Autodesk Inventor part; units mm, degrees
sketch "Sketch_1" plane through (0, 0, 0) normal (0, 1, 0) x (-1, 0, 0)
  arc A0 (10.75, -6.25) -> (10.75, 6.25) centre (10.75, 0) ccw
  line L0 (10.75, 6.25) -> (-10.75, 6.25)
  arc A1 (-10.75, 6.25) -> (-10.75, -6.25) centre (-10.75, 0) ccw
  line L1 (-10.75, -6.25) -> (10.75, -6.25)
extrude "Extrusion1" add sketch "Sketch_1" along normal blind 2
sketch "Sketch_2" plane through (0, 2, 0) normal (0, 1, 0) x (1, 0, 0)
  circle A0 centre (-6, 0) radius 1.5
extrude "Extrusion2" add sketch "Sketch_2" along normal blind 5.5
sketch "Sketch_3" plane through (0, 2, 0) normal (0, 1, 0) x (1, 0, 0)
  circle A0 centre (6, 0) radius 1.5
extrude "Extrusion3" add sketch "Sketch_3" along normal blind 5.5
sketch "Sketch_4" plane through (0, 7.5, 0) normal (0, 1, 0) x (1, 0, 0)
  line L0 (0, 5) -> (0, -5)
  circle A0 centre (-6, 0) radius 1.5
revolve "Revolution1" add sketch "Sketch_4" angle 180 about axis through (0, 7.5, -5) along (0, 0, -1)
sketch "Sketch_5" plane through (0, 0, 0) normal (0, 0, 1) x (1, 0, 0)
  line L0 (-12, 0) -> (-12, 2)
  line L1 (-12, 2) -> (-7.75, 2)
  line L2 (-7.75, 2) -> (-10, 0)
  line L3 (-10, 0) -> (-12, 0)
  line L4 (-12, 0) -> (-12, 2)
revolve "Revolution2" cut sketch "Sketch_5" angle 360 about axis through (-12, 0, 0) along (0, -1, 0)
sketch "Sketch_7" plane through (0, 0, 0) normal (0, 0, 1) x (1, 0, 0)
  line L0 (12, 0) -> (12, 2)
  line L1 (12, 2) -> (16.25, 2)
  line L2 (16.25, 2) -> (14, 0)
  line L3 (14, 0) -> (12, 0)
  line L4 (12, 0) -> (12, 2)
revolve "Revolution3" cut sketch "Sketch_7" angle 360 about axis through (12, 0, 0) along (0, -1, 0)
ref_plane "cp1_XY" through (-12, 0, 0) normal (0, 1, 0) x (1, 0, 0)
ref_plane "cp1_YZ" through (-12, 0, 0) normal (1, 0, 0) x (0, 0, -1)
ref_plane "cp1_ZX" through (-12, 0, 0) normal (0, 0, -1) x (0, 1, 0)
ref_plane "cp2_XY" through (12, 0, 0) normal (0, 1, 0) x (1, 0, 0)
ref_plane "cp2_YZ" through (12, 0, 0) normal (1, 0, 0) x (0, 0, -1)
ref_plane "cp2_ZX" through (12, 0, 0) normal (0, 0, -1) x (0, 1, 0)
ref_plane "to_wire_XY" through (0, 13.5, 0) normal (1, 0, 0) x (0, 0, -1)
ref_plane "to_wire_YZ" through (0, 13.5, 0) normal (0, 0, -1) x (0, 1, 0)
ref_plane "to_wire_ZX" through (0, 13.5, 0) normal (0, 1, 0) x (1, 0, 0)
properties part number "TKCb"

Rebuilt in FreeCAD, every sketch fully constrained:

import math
import FreeCAD as App
import Part
import Sketcher
from FreeCAD import Vector


def add_polygon(sketch, points):
    """Adds a closed chain of lines whose ends are joined by coincident constraints."""
    first, n = sketch.GeometryCount, len(points)
    for a, b in zip(points, points[1:] + points[:1]):
        sketch.addGeometry(Part.LineSegment(App.Vector(*a, 0), App.Vector(*b, 0)), False)
    for i in range(n):
        sketch.addConstraint(Sketcher.Constraint("Coincident", first + i, 2, first + (i + 1) % n, 1))

doc = App.newDocument("Part")
body = doc.addObject("PartDesign::Body", "Body")

# Sketch on XZ plane
sketch1 = body.newObject("Sketcher::SketchObject", "Sketch")
sketch1.AttachmentSupport = (doc.getObject("XZ_Plane"), [""])
sketch1.MapMode = "FlatFace"
sketch1.addGeometry(Part.LineSegment(Vector(11, -6, 0), Vector(-11, -6, 0)), False)
sketch1.addGeometry(Part.ArcOfCircle(Part.Circle(Vector(-11, 0, 0), Vector(0, 0, 1), 6), math.radians(90), math.radians(270)), False)
sketch1.addGeometry(Part.LineSegment(Vector(-11, 6, 0), Vector(11, 6, 0)), False)
sketch1.addGeometry(Part.ArcOfCircle(Part.Circle(Vector(11, 0, 0), Vector(0, 0, 1), 6), math.radians(-90), math.radians(90)), False)
sketch1.addConstraint(Sketcher.Constraint("Tangent", 0, 2, 1, 2))
sketch1.addConstraint(Sketcher.Constraint("Tangent", 1, 1, 2, 1))
sketch1.addConstraint(Sketcher.Constraint("Tangent", 2, 2, 3, 2))
sketch1.addConstraint(Sketcher.Constraint("Tangent", 3, 1, 0, 1))
sketch1.addConstraint(Sketcher.Constraint("Horizontal", 0))
sketch1.addConstraint(Sketcher.Constraint("Horizontal", 2))
sketch1.addConstraint(Sketcher.Constraint("Symmetric", 1, 3, 3, 3, -1, 1))
sketch1.addConstraint(Sketcher.Constraint("Radius", 1, 6.25))
sketch1.addConstraint(Sketcher.Constraint("DistanceX", 0, 2, 0, 1, 21.5))
pad1 = body.newObject("PartDesign::Pad", "Pad")
pad1.Profile = sketch1
pad1.Length = 2
pad1.Reversed = True

# Sketch on XZ plane
sketch2 = body.newObject("Sketcher::SketchObject", "Sketch001")
sketch2.AttachmentSupport = (doc.getObject("XZ_Plane"), [""])
sketch2.MapMode = "FlatFace"
sketch2.AttachmentOffset = App.Placement(Vector(0, 0, -2), App.Rotation())
sketch2.addGeometry(Part.Circle(Vector(-6, 0, 0), Vector(0, 0, 1), 1.5), False)
sketch2.addConstraint(Sketcher.Constraint("PointOnObject", 0, 3, -1))
sketch2.addConstraint(Sketcher.Constraint("Diameter", 0, 3.0))
sketch2.addConstraint(Sketcher.Constraint("DistanceX", 0, 3, -1, 1, 6.0))
pad2 = body.newObject("PartDesign::Pad", "Pad001")
pad2.Profile = sketch2
pad2.Length = 5.5
pad2.Reversed = True

# Sketch on XZ plane
sketch3 = body.newObject("Sketcher::SketchObject", "Sketch002")
sketch3.AttachmentSupport = (doc.getObject("XZ_Plane"), [""])
sketch3.MapMode = "FlatFace"
sketch3.AttachmentOffset = App.Placement(Vector(0, 0, -2), App.Rotation())
sketch3.addGeometry(Part.Circle(Vector(6, 0, 0), Vector(0, 0, 1), 1.5), False)
sketch3.addConstraint(Sketcher.Constraint("PointOnObject", 0, 3, -1))
sketch3.addConstraint(Sketcher.Constraint("Diameter", 0, 3.0))
sketch3.addConstraint(Sketcher.Constraint("DistanceX", -1, 1, 0, 3, 6.0))
pad3 = body.newObject("PartDesign::Pad", "Pad002")
pad3.Profile = sketch3
pad3.Length = 5.5
pad3.Reversed = True

# Sketch on XZ plane
sketch4 = body.newObject("Sketcher::SketchObject", "Sketch003")
sketch4.AttachmentSupport = (doc.getObject("XZ_Plane"), [""])
sketch4.MapMode = "FlatFace"
sketch4.AttachmentOffset = App.Placement(Vector(0, 0, -7.5), App.Rotation())
sketch4.addGeometry(Part.Circle(Vector(-6, 0, 0), Vector(0, 0, 1), 1.5), False)
sketch4.addConstraint(Sketcher.Constraint("PointOnObject", 0, 3, -1))
sketch4.addConstraint(Sketcher.Constraint("Diameter", 0, 3.0))
sketch4.addConstraint(Sketcher.Constraint("DistanceX", 0, 3, -1, 1, 6.0))
revolution = body.newObject("PartDesign::Revolution", "Revolution")
revolution.Profile = sketch4
revolution.ReferenceAxis = (sketch4, ["V_Axis"])
revolution.Angle = 180
revolution.Reversed = True

# Sketch on XY plane
sketch5 = body.newObject("Sketcher::SketchObject", "Sketch004")
sketch5.AttachmentSupport = (doc.getObject("XY_Plane"), [""])
sketch5.MapMode = "FlatFace"
add_polygon(sketch5, [(-12, 2), (-12, 0), (-10, 0), (-7.8, 2)])  # lines 0-3
sketch5.addGeometry(Part.LineSegment(Vector(-12, 2, 0), Vector(-12, 0, 0)), True)  # axis
sketch5.addConstraint(Sketcher.Constraint("Vertical", 0))
sketch5.addConstraint(Sketcher.Constraint("Horizontal", 1))
sketch5.addConstraint(Sketcher.Constraint("Horizontal", 3))
sketch5.addConstraint(Sketcher.Constraint("Vertical", 4))
sketch5.addConstraint(Sketcher.Constraint("Coincident", 4, 1, 3, 2))
sketch5.addConstraint(Sketcher.Constraint("PointOnObject", 0, 2, -1))
sketch5.addConstraint(Sketcher.Constraint("PointOnObject", 4, 2, -1))
sketch5.addConstraint(Sketcher.Constraint("Equal", 1, 0))
sketch5.addConstraint(Sketcher.Constraint("DistanceX", 1, 1, 1, 2, 2.0))
sketch5.addConstraint(Sketcher.Constraint("DistanceX", 0, 2, -1, 1, 12.0))
sketch5.addConstraint(Sketcher.Constraint("DistanceX", 3, 2, 3, 1, 4.25))
groove = body.newObject("PartDesign::Groove", "Groove")
groove.Profile = sketch5
groove.ReferenceAxis = (sketch5, ["Axis0"])
groove.Angle = 360

# Sketch on XY plane
sketch6 = body.newObject("Sketcher::SketchObject", "Sketch005")
sketch6.AttachmentSupport = (doc.getObject("XY_Plane"), [""])
sketch6.MapMode = "FlatFace"
add_polygon(sketch6, [(12, 2), (12, 0), (14, 0), (16.2, 2)])  # lines 0-3
sketch6.addGeometry(Part.LineSegment(Vector(12, 2, 0), Vector(12, 0, 0)), True)  # axis
sketch6.addConstraint(Sketcher.Constraint("Vertical", 0))
sketch6.addConstraint(Sketcher.Constraint("Horizontal", 1))
sketch6.addConstraint(Sketcher.Constraint("Horizontal", 3))
sketch6.addConstraint(Sketcher.Constraint("Vertical", 4))
sketch6.addConstraint(Sketcher.Constraint("Coincident", 4, 1, 3, 2))
sketch6.addConstraint(Sketcher.Constraint("PointOnObject", 0, 2, -1))
sketch6.addConstraint(Sketcher.Constraint("PointOnObject", 4, 2, -1))
sketch6.addConstraint(Sketcher.Constraint("Equal", 1, 0))
sketch6.addConstraint(Sketcher.Constraint("DistanceX", 1, 1, 1, 2, 2.0))
sketch6.addConstraint(Sketcher.Constraint("DistanceX", -1, 1, 0, 2, 12.0))
sketch6.addConstraint(Sketcher.Constraint("DistanceX", 3, 2, 3, 1, 4.25))
groove2 = body.newObject("PartDesign::Groove", "Groove001")
groove2.Profile = sketch6
groove2.ReferenceAxis = (sketch6, ["Axis0"])
groove2.Angle = 360

doc.recompute()
